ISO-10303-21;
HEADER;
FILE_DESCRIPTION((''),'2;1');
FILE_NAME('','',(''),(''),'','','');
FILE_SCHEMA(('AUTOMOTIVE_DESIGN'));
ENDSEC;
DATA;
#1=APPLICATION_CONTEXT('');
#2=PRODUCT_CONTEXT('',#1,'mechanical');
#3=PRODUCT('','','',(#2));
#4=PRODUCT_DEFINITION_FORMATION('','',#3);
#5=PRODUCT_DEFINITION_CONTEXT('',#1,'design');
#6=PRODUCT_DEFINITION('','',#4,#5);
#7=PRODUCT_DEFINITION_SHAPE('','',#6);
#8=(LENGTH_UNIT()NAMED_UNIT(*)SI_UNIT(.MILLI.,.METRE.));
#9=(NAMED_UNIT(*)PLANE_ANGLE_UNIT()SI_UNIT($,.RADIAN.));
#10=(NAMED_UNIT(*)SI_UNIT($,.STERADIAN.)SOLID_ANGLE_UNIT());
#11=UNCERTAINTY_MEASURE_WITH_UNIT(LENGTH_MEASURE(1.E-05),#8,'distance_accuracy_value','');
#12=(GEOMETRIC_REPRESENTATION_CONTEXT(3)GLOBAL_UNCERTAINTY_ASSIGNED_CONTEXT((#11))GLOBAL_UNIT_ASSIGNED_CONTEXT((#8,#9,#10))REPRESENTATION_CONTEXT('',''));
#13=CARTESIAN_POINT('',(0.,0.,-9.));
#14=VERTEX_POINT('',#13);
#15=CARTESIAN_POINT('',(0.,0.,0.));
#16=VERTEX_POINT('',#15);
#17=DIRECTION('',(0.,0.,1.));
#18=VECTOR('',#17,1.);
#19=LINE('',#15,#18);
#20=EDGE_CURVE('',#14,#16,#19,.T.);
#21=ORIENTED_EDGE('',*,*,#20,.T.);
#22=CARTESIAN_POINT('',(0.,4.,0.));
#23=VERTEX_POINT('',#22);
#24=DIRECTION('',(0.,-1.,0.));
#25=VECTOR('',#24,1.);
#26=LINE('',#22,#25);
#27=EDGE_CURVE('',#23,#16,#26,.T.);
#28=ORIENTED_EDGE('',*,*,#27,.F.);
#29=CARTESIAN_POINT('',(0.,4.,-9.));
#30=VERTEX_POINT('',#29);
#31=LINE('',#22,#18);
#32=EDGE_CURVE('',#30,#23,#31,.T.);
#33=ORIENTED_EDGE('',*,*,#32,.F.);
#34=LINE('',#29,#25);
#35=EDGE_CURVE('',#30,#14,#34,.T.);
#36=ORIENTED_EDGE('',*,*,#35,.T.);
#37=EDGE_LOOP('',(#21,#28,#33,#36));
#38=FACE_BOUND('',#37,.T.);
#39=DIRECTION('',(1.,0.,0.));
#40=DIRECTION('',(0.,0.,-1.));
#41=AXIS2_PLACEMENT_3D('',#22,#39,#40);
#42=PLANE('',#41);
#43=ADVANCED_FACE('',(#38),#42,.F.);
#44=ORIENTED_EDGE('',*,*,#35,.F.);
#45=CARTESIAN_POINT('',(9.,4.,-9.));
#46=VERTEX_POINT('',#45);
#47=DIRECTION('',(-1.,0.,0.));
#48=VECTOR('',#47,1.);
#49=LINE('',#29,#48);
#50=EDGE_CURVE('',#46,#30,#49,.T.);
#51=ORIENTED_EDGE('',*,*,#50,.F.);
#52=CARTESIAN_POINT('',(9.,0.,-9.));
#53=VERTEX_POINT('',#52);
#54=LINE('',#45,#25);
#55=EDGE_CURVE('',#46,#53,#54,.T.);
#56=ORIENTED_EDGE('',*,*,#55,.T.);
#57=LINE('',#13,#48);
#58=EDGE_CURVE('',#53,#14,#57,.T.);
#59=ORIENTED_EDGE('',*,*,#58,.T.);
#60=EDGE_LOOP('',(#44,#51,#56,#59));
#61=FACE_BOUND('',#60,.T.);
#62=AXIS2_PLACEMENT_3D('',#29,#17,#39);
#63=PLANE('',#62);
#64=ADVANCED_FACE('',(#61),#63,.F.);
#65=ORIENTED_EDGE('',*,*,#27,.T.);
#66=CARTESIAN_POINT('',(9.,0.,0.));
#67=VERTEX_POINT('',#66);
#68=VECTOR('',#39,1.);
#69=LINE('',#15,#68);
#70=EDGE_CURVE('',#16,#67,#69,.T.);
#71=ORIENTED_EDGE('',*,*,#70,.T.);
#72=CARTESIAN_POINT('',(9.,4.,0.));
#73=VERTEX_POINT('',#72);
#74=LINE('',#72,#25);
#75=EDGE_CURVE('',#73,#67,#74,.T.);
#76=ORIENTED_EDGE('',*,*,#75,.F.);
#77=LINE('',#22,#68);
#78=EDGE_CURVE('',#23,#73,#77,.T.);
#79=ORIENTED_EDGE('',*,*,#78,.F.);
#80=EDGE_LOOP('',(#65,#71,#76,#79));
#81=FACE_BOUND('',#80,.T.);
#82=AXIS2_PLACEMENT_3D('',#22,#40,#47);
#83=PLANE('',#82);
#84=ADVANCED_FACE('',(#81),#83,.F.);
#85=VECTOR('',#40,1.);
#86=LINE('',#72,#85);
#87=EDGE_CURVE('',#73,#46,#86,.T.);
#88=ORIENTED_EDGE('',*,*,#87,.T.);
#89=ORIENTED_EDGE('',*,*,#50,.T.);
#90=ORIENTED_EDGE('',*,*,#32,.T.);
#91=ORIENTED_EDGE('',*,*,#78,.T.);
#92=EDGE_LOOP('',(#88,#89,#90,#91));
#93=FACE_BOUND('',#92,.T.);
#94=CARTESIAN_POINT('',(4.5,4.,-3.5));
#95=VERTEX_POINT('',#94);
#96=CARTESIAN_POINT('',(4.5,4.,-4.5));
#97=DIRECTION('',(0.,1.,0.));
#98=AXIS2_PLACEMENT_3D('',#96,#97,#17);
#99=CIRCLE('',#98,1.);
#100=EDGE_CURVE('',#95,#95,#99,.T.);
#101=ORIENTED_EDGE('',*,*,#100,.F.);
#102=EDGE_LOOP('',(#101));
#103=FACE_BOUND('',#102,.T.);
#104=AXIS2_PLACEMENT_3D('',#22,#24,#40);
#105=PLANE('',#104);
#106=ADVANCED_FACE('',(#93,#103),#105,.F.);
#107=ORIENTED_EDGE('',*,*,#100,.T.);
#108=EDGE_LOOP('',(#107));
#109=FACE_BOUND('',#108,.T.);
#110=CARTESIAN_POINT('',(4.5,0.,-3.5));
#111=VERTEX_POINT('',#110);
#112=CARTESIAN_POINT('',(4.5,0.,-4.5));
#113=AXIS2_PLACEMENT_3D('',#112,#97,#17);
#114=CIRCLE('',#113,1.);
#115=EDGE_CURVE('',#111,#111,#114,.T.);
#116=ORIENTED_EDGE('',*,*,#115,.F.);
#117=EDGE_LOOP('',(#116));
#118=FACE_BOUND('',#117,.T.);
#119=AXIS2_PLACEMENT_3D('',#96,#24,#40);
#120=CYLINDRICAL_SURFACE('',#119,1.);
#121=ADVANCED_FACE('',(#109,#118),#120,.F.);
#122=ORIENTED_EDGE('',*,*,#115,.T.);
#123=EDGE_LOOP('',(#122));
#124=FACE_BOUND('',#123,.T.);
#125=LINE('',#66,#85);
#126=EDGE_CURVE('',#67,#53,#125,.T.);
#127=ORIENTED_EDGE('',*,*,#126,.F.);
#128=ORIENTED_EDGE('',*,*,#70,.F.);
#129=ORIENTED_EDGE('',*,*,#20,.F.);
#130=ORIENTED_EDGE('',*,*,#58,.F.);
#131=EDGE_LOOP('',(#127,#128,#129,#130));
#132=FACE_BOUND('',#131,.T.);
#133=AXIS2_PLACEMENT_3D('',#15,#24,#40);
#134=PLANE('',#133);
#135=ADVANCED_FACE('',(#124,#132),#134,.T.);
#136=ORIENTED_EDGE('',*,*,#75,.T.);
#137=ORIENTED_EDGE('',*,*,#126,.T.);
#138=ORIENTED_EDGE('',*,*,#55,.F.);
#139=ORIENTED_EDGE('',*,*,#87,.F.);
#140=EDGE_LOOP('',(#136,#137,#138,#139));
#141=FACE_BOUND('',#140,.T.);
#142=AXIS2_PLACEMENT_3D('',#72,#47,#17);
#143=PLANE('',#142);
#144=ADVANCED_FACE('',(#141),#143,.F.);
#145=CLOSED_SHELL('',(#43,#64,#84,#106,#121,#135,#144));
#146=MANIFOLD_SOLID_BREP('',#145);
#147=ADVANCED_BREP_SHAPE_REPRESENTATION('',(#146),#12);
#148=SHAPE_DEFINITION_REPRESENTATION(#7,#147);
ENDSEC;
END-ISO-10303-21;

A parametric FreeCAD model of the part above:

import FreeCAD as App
import Part
import Sketcher
from FreeCAD import Vector

doc = App.newDocument("Part")
body = doc.addObject("PartDesign::Body", "Body")

# Sketch on XZ plane
sketch1 = body.newObject("Sketcher::SketchObject", "Sketch")
sketch1.AttachmentSupport = (doc.getObject("XZ_Plane"), [""])
sketch1.MapMode = "FlatFace"
sketch1.addGeometry(Part.LineSegment(Vector(0, -9, 0), Vector(0, 0, 0)), False)
sketch1.addGeometry(Part.LineSegment(Vector(0, 0, 0), Vector(9, 0, 0)), False)
sketch1.addGeometry(Part.LineSegment(Vector(9, 0, 0), Vector(9, -9, 0)), False)
sketch1.addGeometry(Part.LineSegment(Vector(9, -9, 0), Vector(0, -9, 0)), False)
sketch1.addGeometry(Part.Circle(Vector(4.5, -4.5, 0), Vector(0, 0, 1), 1), False)
sketch1.addConstraint(Sketcher.Constraint("Coincident", 0, 2, 1, 1))
sketch1.addConstraint(Sketcher.Constraint("Coincident", 1, 2, 2, 1))
sketch1.addConstraint(Sketcher.Constraint("Coincident", 2, 2, 3, 1))
sketch1.addConstraint(Sketcher.Constraint("Coincident", 3, 2, 0, 1))
sketch1.addConstraint(Sketcher.Constraint("Vertical", 0))
sketch1.addConstraint(Sketcher.Constraint("Horizontal", 1))
sketch1.addConstraint(Sketcher.Constraint("Vertical", 2))
sketch1.addConstraint(Sketcher.Constraint("Horizontal", 3))
sketch1.addConstraint(Sketcher.Constraint("Coincident", 0, 2, -1, 1))
sketch1.addConstraint(Sketcher.Constraint("Equal", 3, 0))
sketch1.addConstraint(Sketcher.Constraint("Diameter", 4, 2.0))
sketch1.addConstraint(Sketcher.Constraint("DistanceX", 1, 1, 1, 2, 9.0))
sketch1.addConstraint(Sketcher.Constraint("DistanceX", -1, 1, 4, 3, 4.5))
sketch1.addConstraint(Sketcher.Constraint("DistanceY", 4, 3, -1, 1, 4.5))
pad1 = body.newObject("PartDesign::Pad", "Pad")
pad1.Profile = sketch1
pad1.Length = 4
pad1.Reversed = True

doc.recompute()
